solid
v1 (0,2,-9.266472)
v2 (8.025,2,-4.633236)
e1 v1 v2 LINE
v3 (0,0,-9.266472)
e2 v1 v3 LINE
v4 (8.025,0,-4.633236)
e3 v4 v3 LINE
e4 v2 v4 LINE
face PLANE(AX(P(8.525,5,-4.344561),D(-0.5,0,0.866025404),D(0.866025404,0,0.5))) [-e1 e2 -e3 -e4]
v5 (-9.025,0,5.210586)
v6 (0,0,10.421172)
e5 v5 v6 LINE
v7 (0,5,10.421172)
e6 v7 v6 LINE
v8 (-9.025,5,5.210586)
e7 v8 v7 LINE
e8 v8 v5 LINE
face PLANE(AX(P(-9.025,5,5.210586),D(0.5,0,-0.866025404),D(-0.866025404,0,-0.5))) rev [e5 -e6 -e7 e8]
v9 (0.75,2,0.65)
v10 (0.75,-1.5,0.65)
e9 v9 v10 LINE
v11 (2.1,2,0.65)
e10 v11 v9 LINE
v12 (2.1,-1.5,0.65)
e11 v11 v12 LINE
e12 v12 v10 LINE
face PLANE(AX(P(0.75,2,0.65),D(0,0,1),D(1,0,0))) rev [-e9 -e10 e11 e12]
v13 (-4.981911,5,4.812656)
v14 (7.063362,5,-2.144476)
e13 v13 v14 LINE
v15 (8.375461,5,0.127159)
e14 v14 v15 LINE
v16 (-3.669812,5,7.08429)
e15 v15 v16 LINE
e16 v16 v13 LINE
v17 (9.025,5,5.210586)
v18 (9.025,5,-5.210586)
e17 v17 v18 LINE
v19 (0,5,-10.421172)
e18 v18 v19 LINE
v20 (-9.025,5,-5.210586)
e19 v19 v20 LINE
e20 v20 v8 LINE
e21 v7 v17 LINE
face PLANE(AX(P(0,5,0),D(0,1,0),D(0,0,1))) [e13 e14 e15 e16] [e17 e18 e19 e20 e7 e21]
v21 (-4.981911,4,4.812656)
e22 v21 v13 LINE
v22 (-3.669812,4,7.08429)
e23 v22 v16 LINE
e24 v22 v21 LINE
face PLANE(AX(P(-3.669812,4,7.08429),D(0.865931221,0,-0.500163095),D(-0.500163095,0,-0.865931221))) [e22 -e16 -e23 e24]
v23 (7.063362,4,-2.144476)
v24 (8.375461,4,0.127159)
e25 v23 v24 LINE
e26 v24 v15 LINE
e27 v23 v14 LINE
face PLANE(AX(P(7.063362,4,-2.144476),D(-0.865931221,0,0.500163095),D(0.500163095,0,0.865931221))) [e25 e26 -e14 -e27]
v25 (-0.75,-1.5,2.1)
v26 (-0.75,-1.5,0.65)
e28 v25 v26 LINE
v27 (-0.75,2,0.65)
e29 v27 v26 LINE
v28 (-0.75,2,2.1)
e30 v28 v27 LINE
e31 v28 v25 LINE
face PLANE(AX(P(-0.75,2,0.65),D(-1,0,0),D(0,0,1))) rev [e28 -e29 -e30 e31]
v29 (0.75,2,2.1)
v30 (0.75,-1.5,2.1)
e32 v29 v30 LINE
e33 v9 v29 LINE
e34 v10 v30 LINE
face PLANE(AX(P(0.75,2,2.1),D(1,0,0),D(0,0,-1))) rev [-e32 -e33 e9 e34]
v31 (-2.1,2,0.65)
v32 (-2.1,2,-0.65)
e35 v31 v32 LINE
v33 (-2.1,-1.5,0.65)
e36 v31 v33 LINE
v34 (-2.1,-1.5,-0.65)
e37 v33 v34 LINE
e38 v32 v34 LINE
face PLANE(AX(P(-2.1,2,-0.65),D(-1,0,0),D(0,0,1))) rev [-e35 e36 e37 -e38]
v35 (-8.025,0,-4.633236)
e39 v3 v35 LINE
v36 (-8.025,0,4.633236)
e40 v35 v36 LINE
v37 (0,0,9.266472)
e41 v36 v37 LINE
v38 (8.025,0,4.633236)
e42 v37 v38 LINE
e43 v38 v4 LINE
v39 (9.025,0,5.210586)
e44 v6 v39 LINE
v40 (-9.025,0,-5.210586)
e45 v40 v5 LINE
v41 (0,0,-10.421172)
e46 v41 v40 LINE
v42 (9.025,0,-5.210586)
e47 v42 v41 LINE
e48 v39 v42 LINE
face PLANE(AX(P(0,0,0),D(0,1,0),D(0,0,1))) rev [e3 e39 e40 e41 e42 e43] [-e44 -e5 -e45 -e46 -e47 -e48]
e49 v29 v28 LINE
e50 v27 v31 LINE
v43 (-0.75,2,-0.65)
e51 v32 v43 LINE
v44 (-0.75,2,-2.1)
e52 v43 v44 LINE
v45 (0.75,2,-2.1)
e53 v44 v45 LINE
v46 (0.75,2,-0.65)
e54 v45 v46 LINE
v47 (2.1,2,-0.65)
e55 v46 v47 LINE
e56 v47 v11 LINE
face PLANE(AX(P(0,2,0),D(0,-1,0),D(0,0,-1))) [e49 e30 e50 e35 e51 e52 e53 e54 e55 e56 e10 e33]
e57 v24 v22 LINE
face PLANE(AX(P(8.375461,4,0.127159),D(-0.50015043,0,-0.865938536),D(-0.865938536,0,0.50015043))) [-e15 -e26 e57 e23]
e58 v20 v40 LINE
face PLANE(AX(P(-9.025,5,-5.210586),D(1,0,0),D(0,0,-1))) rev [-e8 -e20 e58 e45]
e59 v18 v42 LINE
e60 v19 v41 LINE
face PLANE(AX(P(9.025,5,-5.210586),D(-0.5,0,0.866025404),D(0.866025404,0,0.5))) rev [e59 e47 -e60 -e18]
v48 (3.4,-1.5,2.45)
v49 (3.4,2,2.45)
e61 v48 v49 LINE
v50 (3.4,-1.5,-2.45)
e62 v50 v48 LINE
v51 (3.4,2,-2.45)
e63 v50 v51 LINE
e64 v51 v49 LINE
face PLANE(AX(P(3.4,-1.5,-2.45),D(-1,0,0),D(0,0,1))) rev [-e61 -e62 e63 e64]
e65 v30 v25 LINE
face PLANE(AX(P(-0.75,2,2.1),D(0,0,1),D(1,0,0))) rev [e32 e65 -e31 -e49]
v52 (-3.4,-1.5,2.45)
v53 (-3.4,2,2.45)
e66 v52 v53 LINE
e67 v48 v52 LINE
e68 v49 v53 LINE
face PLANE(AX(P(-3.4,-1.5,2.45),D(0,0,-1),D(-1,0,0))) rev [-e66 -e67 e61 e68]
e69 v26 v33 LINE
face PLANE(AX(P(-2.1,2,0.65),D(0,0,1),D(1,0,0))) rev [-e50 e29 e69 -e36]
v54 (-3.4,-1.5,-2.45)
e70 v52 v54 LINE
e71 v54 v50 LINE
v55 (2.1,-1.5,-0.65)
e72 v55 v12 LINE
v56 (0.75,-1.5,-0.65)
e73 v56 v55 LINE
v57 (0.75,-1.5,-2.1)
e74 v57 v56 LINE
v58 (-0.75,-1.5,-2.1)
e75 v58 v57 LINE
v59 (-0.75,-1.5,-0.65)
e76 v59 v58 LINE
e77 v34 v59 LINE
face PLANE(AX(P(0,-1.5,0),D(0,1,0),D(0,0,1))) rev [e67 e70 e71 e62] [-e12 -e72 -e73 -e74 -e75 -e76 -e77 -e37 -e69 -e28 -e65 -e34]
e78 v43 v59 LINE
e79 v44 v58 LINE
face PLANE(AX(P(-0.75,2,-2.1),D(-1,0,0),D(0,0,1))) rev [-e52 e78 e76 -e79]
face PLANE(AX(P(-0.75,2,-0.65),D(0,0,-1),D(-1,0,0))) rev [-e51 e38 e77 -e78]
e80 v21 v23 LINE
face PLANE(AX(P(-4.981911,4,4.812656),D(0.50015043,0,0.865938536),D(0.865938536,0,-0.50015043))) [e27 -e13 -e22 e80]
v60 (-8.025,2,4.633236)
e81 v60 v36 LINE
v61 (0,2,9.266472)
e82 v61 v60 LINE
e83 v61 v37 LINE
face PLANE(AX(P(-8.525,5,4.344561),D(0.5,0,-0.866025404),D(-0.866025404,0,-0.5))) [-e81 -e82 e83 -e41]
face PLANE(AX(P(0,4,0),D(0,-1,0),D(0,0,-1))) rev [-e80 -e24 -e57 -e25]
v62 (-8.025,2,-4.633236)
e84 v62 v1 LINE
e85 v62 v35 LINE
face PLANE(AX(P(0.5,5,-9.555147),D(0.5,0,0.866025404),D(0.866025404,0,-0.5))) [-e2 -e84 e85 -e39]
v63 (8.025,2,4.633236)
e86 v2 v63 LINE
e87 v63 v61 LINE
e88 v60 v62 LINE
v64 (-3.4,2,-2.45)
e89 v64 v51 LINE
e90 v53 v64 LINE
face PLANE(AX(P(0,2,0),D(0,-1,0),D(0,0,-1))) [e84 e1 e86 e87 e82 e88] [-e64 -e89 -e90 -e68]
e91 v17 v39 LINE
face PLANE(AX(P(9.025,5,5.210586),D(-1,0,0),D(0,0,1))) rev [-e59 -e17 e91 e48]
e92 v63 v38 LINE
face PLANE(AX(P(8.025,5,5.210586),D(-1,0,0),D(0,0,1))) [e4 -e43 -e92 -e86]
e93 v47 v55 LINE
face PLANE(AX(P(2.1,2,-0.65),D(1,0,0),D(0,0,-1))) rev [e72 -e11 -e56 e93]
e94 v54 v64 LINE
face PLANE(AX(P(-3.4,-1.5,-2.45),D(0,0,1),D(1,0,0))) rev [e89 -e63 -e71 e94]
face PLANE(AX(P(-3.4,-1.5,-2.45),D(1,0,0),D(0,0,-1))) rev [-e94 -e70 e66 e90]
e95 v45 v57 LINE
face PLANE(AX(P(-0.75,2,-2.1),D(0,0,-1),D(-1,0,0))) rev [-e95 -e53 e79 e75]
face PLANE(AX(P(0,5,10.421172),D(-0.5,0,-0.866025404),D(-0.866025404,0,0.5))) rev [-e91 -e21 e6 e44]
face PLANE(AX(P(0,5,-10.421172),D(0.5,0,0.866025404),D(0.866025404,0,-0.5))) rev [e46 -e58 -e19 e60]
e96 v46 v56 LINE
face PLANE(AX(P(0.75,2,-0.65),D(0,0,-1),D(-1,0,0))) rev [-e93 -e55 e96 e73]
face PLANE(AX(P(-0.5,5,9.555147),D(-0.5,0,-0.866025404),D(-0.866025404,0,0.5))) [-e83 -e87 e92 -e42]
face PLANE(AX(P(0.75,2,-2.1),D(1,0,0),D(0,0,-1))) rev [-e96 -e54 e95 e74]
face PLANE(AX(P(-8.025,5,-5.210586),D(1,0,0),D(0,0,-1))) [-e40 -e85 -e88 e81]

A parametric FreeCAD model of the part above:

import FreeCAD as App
import Part
import Sketcher
from FreeCAD import Vector
Q = App.Units.Quantity


def faces_at(feature, points):
    """Names of the faces that lie closest to the given points."""
    faces = feature.Shape.Faces
    near = lambda p: min(range(len(faces)), key=lambda i: faces[i].distToShape(Part.Vertex(*p))[0])
    return sorted({f"Face{near(p) + 1}" for p in points})


def add_polygon(sketch, points):
    """Adds a closed chain of lines whose ends are joined by coincident constraints."""
    first, n = sketch.GeometryCount, len(points)
    for a, b in zip(points, points[1:] + points[:1]):
        sketch.addGeometry(Part.LineSegment(App.Vector(*a, 0), App.Vector(*b, 0)), False)
    for i in range(n):
        sketch.addConstraint(Sketcher.Constraint("Coincident", first + i, 2, first + (i + 1) % n, 1))

doc = App.newDocument("Part")
body = doc.addObject("PartDesign::Body", "Body")

sketch1 = doc.addObject("Sketcher::SketchObject", "Sketch")
body.addObject(sketch1)
sketch1.AttachmentSupport = (doc.XZ_Plane, [""])
sketch1.MapMode = "FlatFace"
add_polygon(sketch1, [(9.025, -5.210586), (0, -10.421172), (-9.025, -5.210586), (-9.025, 5.210586), (0, 10.421172), (9.025, 5.210586)])
sketch1.addConstraint([
    Sketcher.Constraint("Vertical", 2),
    Sketcher.Constraint("Vertical", 5),
    Sketcher.Constraint("Symmetric", 0, 2, 3, 2, -1, 1),
    Sketcher.Constraint("Symmetric", 1, 2, 4, 2, -1, 1),
    Sketcher.Constraint("PointOnObject", 0, 2, -2),
    Sketcher.Constraint("Parallel", 0, 3),
    Sketcher.Constraint("Horizontal", 2, 2, 4, 2),
    Sketcher.Constraint("Angle", 0, Q("-150 deg")),
    Sketcher.Constraint("DistanceX", 2, 2, 4, 2, 18.05),
    Sketcher.Constraint("DistanceY", 2, 1, 2, 2, 10.421172),
])
pad1 = doc.addObject("PartDesign::Pad", "Pad")
body.addObject(pad1)
pad1.Profile = sketch1
pad1.Length = 5
pad1.Reversed = True
doc.recompute()

thickness = doc.addObject("PartDesign::Thickness", "Thickness")
body.addObject(thickness)
thickness.Base = (pad1, faces_at(pad1, [(0, 0, 0)]))
thickness.Value = 1
thickness.Reversed = True
thickness.Join = "Intersection"

sketch2 = doc.addObject("Sketcher::SketchObject", "Sketch001")
body.addObject(sketch2)
sketch2.AttachmentSupport = (doc.XZ_Plane, [""])
sketch2.MapMode = "FlatFace"
sketch2.AttachmentOffset = App.Placement(Vector(0, 0, -4), App.Rotation())
add_polygon(sketch2, [(8.025, -4.633236), (8.025, 4.633236), (0, 9.266472), (-8.025, 4.633236), (-8.025, -4.633236), (0, -9.266472)])
sketch2.addConstraint([
    Sketcher.Constraint("Vertical", 0),
    Sketcher.Constraint("Vertical", 3),
    Sketcher.Constraint("Symmetric", 0, 2, 3, 2, -1, 1),
    Sketcher.Constraint("Symmetric", 1, 2, 4, 2, -1, 1),
    Sketcher.Constraint("PointOnObject", 1, 2, -2),
    Sketcher.Constraint("Parallel", 2, 5),
    Sketcher.Constraint("Horizontal", 0, 2, 2, 2),
    Sketcher.Constraint("Angle", 1, Q("150 deg")),
    Sketcher.Constraint("DistanceX", 2, 2, 0, 2, 16.05),
    Sketcher.Constraint("DistanceY", 0, 1, 0, 2, 9.266472),
])
pad2 = doc.addObject("PartDesign::Pad", "Pad001")
body.addObject(pad2)
pad2.Profile = sketch2
pad2.Length = 2

sketch3 = doc.addObject("Sketcher::SketchObject", "Sketch002")
body.addObject(sketch3)
sketch3.AttachmentSupport = (doc.XZ_Plane, [""])
sketch3.MapMode = "FlatFace"
sketch3.AttachmentOffset = App.Placement(Vector(0, 0, -2), App.Rotation())
add_polygon(sketch3, [(-3.4, 2.45), (-3.4, -2.45), (3.4, -2.45), (3.4, 2.45)])
sketch3.addConstraint([
    Sketcher.Constraint("Vertical", 0),
    Sketcher.Constraint("Horizontal", 1),
    Sketcher.Constraint("Vertical", 2),
    Sketcher.Constraint("Horizontal", 3),
    Sketcher.Constraint("Symmetric", 0, 2, 2, 2, -1, 1),
    Sketcher.Constraint("DistanceX", 1, 1, 1, 2, 6.8),
    Sketcher.Constraint("DistanceY", 0, 2, 0, 1, 4.9),
])
pad3 = doc.addObject("PartDesign::Pad", "Pad002")
body.addObject(pad3)
pad3.Profile = sketch3
pad3.Length = 3.5

sketch4 = doc.addObject("Sketcher::SketchObject", "Sketch003")
body.addObject(sketch4)
sketch4.AttachmentSupport = (doc.XZ_Plane, [""])
sketch4.MapMode = "FlatFace"
sketch4.AttachmentOffset = App.Placement(Vector(0, 0, 1.5), App.Rotation())
add_polygon(sketch4, [(2.1, -0.65), (2.1, 0.65), (0.75, 0.65), (0.75, 2.1), (-0.75, 2.1), (-0.75, 0.65), (-2.1, 0.65), (-2.1, -0.65), (-0.75, -0.65), (-0.75, -2.1), (0.75, -2.1), (0.75, -0.65)])
sketch4.addConstraint([
    Sketcher.Constraint("Vertical", 0),
    Sketcher.Constraint("Horizontal", 1),
    Sketcher.Constraint("Vertical", 2),
    Sketcher.Constraint("Horizontal", 3),
    Sketcher.Constraint("Vertical", 4),
    Sketcher.Constraint("Horizontal", 5),
    Sketcher.Constraint("Vertical", 6),
    Sketcher.Constraint("Horizontal", 7),
    Sketcher.Constraint("Vertical", 8),
    Sketcher.Constraint("Horizontal", 9),
    Sketcher.Constraint("Vertical", 10),
    Sketcher.Constraint("Horizontal", 11),
    Sketcher.Constraint("Symmetric", 0, 2, 6, 2, -1, 1),
    Sketcher.Constraint("Symmetric", 2, 2, 8, 2, -1, 1),
    Sketcher.Constraint("Symmetric", 4, 2, 10, 2, -1, 1),
    Sketcher.Constraint("Symmetric", 1, 2, 4, 2, -2),
    Sketcher.Constraint("DistanceX", 3, 2, 3, 1, 1.5),
    Sketcher.Constraint("DistanceY", 0, 1, 0, 2, 1.3),
    Sketcher.Constraint("DistanceX", 1, 2, 1, 1, 1.35),
    Sketcher.Constraint("DistanceY", 2, 1, 2, 2, 1.45),
])
pocket1 = doc.addObject("PartDesign::Pocket", "Pocket")
body.addObject(pocket1)
pocket1.Profile = sketch4
pocket1.Length = 3.5

sketch5 = doc.addObject("Sketcher::SketchObject", "Sketch004")
body.addObject(sketch5)
sketch5.AttachmentSupport = (doc.XZ_Plane, [""])
sketch5.MapMode = "FlatFace"
sketch5.AttachmentOffset = App.Placement(Vector(0, 0, -5), App.Rotation())
add_polygon(sketch5, [(7.063362, -2.144476), (-4.981911, 4.812656), (-3.669812, 7.08429), (8.375461, 0.127159)])
sketch5.addConstraint([
    Sketcher.Constraint("Parallel", 0, 2),
    Sketcher.Constraint("Parallel", 1, 3),
    Sketcher.Constraint("DistanceX", 0, 2, 1, 2, 1.312099),
    Sketcher.Constraint("DistanceX", 0, 2, -1, 1, 4.981911),
    Sketcher.Constraint("DistanceY", -1, 1, 1, 2, 7.08429),
    Sketcher.Constraint("DistanceX", -1, 1, 2, 2, 8.375461),
    Sketcher.Constraint("DistanceY", -1, 1, 2, 2, 0.127159),
    Sketcher.Constraint("Distance", 1, 2.623343),
])
pocket2 = doc.addObject("PartDesign::Pocket", "Pocket001")
body.addObject(pocket2)
pocket2.Profile = sketch5
pocket2.Length = 1
pocket2.Reversed = True

doc.recompute()
